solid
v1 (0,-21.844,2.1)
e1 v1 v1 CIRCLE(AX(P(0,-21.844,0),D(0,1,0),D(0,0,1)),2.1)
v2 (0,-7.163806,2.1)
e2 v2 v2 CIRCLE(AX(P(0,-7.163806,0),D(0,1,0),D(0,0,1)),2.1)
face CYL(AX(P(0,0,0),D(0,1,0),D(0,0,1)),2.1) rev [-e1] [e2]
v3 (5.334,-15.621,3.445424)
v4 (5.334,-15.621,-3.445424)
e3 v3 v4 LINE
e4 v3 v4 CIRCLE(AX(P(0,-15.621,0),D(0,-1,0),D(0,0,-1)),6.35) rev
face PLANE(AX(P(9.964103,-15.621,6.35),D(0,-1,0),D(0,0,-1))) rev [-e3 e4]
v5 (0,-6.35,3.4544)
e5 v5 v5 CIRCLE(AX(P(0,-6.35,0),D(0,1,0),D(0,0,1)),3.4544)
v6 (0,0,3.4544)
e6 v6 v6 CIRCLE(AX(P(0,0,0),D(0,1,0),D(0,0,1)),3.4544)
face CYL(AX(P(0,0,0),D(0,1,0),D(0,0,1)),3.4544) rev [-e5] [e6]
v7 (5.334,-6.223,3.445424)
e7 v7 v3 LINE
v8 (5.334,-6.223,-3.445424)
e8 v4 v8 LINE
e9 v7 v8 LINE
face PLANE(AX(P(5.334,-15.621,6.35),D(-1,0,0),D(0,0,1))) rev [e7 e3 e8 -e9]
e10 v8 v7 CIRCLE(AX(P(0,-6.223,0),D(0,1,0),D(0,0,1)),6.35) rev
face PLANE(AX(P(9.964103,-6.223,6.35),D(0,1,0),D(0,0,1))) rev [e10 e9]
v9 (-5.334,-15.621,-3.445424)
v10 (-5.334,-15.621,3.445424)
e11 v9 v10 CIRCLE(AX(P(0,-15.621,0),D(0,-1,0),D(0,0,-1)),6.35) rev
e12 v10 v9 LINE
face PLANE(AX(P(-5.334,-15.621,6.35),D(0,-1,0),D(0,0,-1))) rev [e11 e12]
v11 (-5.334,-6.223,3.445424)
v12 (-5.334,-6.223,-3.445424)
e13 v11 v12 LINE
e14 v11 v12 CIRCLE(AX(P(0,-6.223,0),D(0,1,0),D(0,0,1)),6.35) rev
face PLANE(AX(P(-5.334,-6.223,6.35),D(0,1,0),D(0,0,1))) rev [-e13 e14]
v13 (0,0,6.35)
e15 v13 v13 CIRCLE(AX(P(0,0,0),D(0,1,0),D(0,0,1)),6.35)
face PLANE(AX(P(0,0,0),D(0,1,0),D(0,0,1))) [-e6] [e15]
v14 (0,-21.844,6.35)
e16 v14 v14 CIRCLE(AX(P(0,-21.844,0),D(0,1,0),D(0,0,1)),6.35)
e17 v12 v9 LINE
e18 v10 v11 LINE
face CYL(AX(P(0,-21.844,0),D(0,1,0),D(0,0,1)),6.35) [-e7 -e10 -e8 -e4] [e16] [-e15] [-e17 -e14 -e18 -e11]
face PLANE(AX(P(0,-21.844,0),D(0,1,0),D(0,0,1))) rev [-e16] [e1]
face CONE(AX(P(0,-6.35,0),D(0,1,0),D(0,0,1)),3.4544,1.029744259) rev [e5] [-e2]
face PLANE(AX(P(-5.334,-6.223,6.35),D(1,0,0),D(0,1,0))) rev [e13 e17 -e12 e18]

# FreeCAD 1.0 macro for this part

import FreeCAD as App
import Part
import Sketcher

V = App.Vector
Q = App.Units.Quantity

doc = App.newDocument("Part")
params = doc.addObject("Spreadsheet::Sheet", "Params")
for row, (alias, value) in enumerate([
    ("sketch1_diameter", "0.5 in"),
    ("pad1_length", "0.86 in"),
    ("sketch2_height", "0.37 in"),
    ("hole_diameter", "4.2 mm"),
    ("sketch4_diameter", "0.272 in"),
    ("hole2_diameter", "0.272 in"),
    ("hole2_depth", "0.25 in"),
], start=1):
    params.set(f"A{row}", alias)
    params.set(f"B{row}", "=" + value)
    params.setAlias(f"B{row}", alias)

body = doc.addObject("PartDesign::Body", "Body")

# Sketch on XZ plane
sketch1 = body.newObject("Sketcher::SketchObject", "Sketch")
sketch1.AttachmentSupport = (doc.getObject("XZ_Plane"), [""])
sketch1.MapMode = "FlatFace"
sketch1.addGeometry(Part.Circle(V(0, 0, 0), V(0, 0, 1), 6), False)
sketch1.addConstraint([
    Sketcher.Constraint("Coincident", 0, 3, -1, 1),
    Sketcher.Constraint("Diameter", 0, Q("0.5 in")),
])
sketch1.setExpression("Constraints[1]", "Params.sketch1_diameter")
pad1 = body.newObject("PartDesign::Pad", "Pad")
pad1.Profile = sketch1
pad1.setExpression("Length", "Params.pad1_length")

# Sketch on XY plane
sketch2 = body.newObject("Sketcher::SketchObject", "Sketch001")
sketch2.AttachmentSupport = (doc.getObject("XY_Plane"), [""])
sketch2.MapMode = "FlatFace"
sketch2.AttachmentOffset = App.Placement(V(0, 0, -0.25 * 25.4), App.Rotation())
sketch2.addGeometry([
    Part.LineSegment(V(10, -6.2, 0), V(10, -15.6, 0)),  # 0
    Part.LineSegment(V(10, -15.6, 0), V(5.3, -15.6, 0)),  # 1
    Part.LineSegment(V(5.3, -15.6, 0), V(5.3, -6.2, 0)),  # 2
    Part.LineSegment(V(5.3, -6.2, 0), V(10, -6.2, 0)),  # 3
    Part.LineSegment(V(-5.3, -6.2, 0), V(-5.3, -15.6, 0)),  # 4
    Part.LineSegment(V(-5.3, -15.6, 0), V(-10.9, -15.6, 0)),  # 5
    Part.LineSegment(V(-10.9, -15.6, 0), V(-10.9, -6.2, 0)),  # 6
    Part.LineSegment(V(-10.9, -6.2, 0), V(-5.3, -6.2, 0)),  # 7
], False)
sketch2.addConstraint([
    Sketcher.Constraint("Coincident", 0, 2, 1, 1),
    Sketcher.Constraint("Coincident", 1, 2, 2, 1),
    Sketcher.Constraint("Coincident", 2, 2, 3, 1),
    Sketcher.Constraint("Coincident", 3, 2, 0, 1),
    Sketcher.Constraint("Coincident", 4, 2, 5, 1),
    Sketcher.Constraint("Coincident", 5, 2, 6, 1),
    Sketcher.Constraint("Coincident", 6, 2, 7, 1),
    Sketcher.Constraint("Coincident", 7, 2, 4, 1),
    Sketcher.Constraint("Vertical", 0),
    Sketcher.Constraint("Horizontal", 1),
    Sketcher.Constraint("Vertical", 2),
    Sketcher.Constraint("Horizontal", 3),
    Sketcher.Constraint("Vertical", 4),
    Sketcher.Constraint("Horizontal", 5),
    Sketcher.Constraint("Vertical", 6),
    Sketcher.Constraint("Horizontal", 7),
    Sketcher.Constraint("Symmetric", 1, 2, 4, 2, -2),
    Sketcher.Constraint("Horizontal", 3, 2, 6, 2),
    Sketcher.Constraint("DistanceY", 0, 2, 0, 1, Q("0.37 in")),
    Sketcher.Constraint("DistanceX", -1, 1, 1, 2, Q("0.21 in")),
    Sketcher.Constraint("DistanceY", 0, 2, -1, 1, Q("0.615 in")),
    Sketcher.Constraint("DistanceX", 5, 2, 5, 1, Q("5.584399 mm")),
    Sketcher.Constraint("DistanceX", 5, 2, 0, 2, Q("20.882502 mm")),
])
sketch2.setExpression("Constraints[18]", "Params.sketch2_height")
pocket1 = body.newObject("PartDesign::Pocket", "Pocket")
pocket1.Profile = sketch2
pocket1.Type = "ThroughAll"
pocket1.Reversed = True

# Sketch on XZ plane
sketch3 = body.newObject("Sketcher::SketchObject", "Sketch002")
sketch3.AttachmentSupport = (doc.getObject("XZ_Plane"), [""])
sketch3.MapMode = "FlatFace"
sketch3.addGeometry(Part.Circle(V(0, 0, 0), V(0, 0, 1), 2.1), False)
sketch3.addConstraint([
    Sketcher.Constraint("Coincident", 0, 3, -1, 1),
    Sketcher.Constraint("Diameter", 0, Q("4.2 mm")),
])
doc.recompute()
hole = body.newObject("PartDesign::Hole", "Hole")
hole.Profile = sketch3
hole.ThreadType = "None"
hole.setExpression("Diameter", "Params.hole_diameter")
hole.DepthType = "ThroughAll"
hole.Reversed = True

# Sketch on XZ plane
sketch4 = body.newObject("Sketcher::SketchObject", "Sketch003")
sketch4.AttachmentSupport = (doc.getObject("XZ_Plane"), [""])
sketch4.MapMode = "FlatFace"
sketch4.addGeometry(Part.Circle(V(0, 0, 0), V(0, 0, 1), 3.5), False)
sketch4.addConstraint([
    Sketcher.Constraint("Coincident", 0, 3, -1, 1),
    Sketcher.Constraint("Diameter", 0, Q("0.272 in")),
])
sketch4.setExpression("Constraints[1]", "Params.sketch4_diameter")
doc.recompute()
hole2 = body.newObject("PartDesign::Hole", "Hole001")
hole2.Profile = sketch4
hole2.ThreadType = "None"
hole2.setExpression("Diameter", "Params.hole2_diameter")
hole2.DepthType = "Dimension"
hole2.setExpression("Depth", "Params.hole2_depth")
hole2.DrillPoint = "Angled"
hole2.DrillPointAngle = 118
hole2.Reversed = True

doc.recompute()
